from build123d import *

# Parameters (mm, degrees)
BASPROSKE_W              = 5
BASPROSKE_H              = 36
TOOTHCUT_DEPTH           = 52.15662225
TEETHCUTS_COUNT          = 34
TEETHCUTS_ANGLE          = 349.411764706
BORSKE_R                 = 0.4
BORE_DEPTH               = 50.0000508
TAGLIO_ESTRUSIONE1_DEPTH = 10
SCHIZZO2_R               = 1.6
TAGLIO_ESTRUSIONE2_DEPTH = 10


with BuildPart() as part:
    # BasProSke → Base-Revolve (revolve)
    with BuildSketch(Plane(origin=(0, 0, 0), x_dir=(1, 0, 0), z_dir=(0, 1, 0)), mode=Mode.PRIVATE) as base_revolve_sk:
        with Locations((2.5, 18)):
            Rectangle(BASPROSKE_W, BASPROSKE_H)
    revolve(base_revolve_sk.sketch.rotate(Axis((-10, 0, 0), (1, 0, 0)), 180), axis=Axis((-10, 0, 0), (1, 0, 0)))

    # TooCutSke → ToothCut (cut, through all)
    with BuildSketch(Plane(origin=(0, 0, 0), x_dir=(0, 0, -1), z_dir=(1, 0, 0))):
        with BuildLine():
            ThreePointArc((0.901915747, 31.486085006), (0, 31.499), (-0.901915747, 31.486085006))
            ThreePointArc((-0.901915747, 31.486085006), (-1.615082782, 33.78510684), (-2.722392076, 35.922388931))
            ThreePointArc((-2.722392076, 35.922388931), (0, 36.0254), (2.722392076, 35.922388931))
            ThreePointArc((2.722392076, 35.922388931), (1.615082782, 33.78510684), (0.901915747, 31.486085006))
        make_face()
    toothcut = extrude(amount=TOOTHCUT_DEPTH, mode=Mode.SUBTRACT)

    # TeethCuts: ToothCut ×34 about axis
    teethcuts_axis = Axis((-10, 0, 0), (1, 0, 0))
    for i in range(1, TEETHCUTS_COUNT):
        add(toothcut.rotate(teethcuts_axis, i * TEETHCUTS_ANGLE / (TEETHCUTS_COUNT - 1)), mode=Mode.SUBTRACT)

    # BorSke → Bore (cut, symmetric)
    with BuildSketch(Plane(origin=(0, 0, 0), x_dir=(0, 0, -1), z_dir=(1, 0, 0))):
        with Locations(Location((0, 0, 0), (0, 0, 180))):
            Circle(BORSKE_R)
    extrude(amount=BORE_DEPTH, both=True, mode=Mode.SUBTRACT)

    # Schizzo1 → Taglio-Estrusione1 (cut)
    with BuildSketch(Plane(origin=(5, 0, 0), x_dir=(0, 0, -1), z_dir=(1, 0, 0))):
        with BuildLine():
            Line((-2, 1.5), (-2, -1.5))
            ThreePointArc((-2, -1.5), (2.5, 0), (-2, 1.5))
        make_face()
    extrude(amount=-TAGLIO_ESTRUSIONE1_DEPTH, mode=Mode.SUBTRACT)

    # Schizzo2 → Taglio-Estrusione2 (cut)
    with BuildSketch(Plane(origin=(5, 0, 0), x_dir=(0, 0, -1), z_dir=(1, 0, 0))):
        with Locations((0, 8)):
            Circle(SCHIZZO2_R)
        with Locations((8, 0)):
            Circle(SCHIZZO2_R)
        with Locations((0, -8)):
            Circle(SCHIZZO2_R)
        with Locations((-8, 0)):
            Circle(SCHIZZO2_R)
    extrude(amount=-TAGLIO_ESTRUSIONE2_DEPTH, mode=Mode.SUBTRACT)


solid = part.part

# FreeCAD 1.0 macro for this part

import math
import FreeCAD as App
import Part
import Sketcher
Q = App.Units.Quantity


def add_polygon(sketch, points):
    """Adds a closed chain of lines whose ends are joined by coincident constraints."""
    first, n = sketch.GeometryCount, len(points)
    for a, b in zip(points, points[1:] + points[:1]):
        sketch.addGeometry(Part.LineSegment(App.Vector(*a, 0), App.Vector(*b, 0)), False)
    for i in range(n):
        sketch.addConstraint(Sketcher.Constraint("Coincident", first + i, 2, first + (i + 1) % n, 1))

doc = App.newDocument("Part")
body = doc.addObject("PartDesign::Body", "Body")

# Sketch on XZ plane
sketch1 = body.newObject("Sketcher::SketchObject", "Sketch")
sketch1.AttachmentSupport = (doc.getObject("XZ_Plane"), [""])
sketch1.MapMode = "FlatFace"
add_polygon(sketch1, [(0, -36), (0, 0), (5, 0), (5, -36)])  # lines 0-3
sketch1.addConstraint([
    Sketcher.Constraint("Vertical", 0),
    Sketcher.Constraint("Horizontal", 1),
    Sketcher.Constraint("Vertical", 2),
    Sketcher.Constraint("Horizontal", 3),
    Sketcher.Constraint("Coincident", 0, 2, -1, 1),
    Sketcher.Constraint("DistanceX", 1, 1, 1, 2, Q("5 mm")),
    Sketcher.Constraint("DistanceY", 0, 1, 0, 2, Q("36 mm")),
])
revolution = body.newObject("PartDesign::Revolution", "Revolution")
revolution.Profile = sketch1
revolution.ReferenceAxis = (sketch1, ["H_Axis"])
revolution.Angle = 360

# Sketch on YZ plane
sketch2 = body.newObject("Sketcher::SketchObject", "Sketch001")
sketch2.AttachmentSupport = (doc.getObject("YZ_Plane"), [""])
sketch2.MapMode = "FlatFace"
sketch2.addGeometry([
    Part.ArcOfCircle(Part.Circle(App.Vector(-0.000001, 0, 0), App.Vector(0, 0, 1), 31.499001), math.radians(-1.640783), math.radians(1.640783)),
    Part.ArcOfCircle(Part.Circle(App.Vector(28.622038, -14.196924, 0), App.Vector(0, 0, 1), 13.6), math.radians(57.534578), math.radians(77.84297)),
    Part.ArcOfCircle(Part.Circle(App.Vector(0, 0, 0), App.Vector(0, 0, 1), 36.0254), math.radians(-4.333898), math.radians(4.333898)),
    Part.ArcOfCircle(Part.Circle(App.Vector(28.622038, 14.196924, 0), App.Vector(0, 0, 1), 13.6), math.radians(-77.84297), math.radians(-57.534578)),
], False)
sketch2.addConstraint([
    Sketcher.Constraint("Coincident", 0, 1, 1, 2),
    Sketcher.Constraint("Coincident", 1, 1, 2, 1),
    Sketcher.Constraint("Coincident", 2, 2, 3, 2),
    Sketcher.Constraint("Coincident", 3, 1, 0, 2),
    Sketcher.Constraint("Coincident", 0, 3, -1, 1),
    Sketcher.Constraint("Coincident", 2, 3, -1, 1),
    Sketcher.Constraint("Equal", 1, 3),
    Sketcher.Constraint("Symmetric", 1, 3, 3, 3, -1),
    Sketcher.Constraint("Radius", 1, Q("13.6 mm")),
    Sketcher.Constraint("Radius", 0, Q("31.499001 mm")),
    Sketcher.Constraint("Radius", 2, Q("36.0254 mm")),
    Sketcher.Constraint("DistanceX", -1, 1, 1, 1, Q("35.922389 mm")),
    Sketcher.Constraint("DistanceX", 0, 3, 1, 3, Q("28.622039 mm")),
])
pocket1 = body.newObject("PartDesign::Pocket", "Pocket")
pocket1.Profile = sketch2
pocket1.Type = "ThroughAll"
pocket1.Reversed = True
doc.recompute()

polarpattern = body.newObject("PartDesign::PolarPattern", "PolarPattern")
polarpattern.Originals = [pocket1]
polarpattern.Axis = (doc.getObject("X_Axis"), [""])
polarpattern.Angle = 360
polarpattern.Occurrences = 34
body.Tip = polarpattern

# Sketch on YZ plane
sketch3 = body.newObject("Sketcher::SketchObject", "Sketch002")
sketch3.AttachmentSupport = (doc.getObject("YZ_Plane"), [""])
sketch3.MapMode = "FlatFace"
sketch3.addGeometry(Part.Circle(App.Vector(0, 0, 0), App.Vector(0, 0, 1), 0.4), False)
sketch3.addConstraint([
    Sketcher.Constraint("Coincident", 0, 3, -1, 1),
    Sketcher.Constraint("Diameter", 0, Q("0.8 mm")),
])
pocket2 = body.newObject("PartDesign::Pocket", "Pocket001")
pocket2.Profile = sketch3
pocket2.Length = 100.000102
pocket2.Midplane = True

# Sketch on YZ plane
sketch4 = body.newObject("Sketcher::SketchObject", "Sketch003")
sketch4.AttachmentSupport = (doc.getObject("YZ_Plane"), [""])
sketch4.MapMode = "FlatFace"
sketch4.AttachmentOffset = App.Placement(App.Vector(0, 0, 5), App.Rotation())
sketch4.addGeometry([
    Part.LineSegment(App.Vector(1.5, 2, 0), App.Vector(-1.5, 2, 0)),
    Part.ArcOfCircle(Part.Circle(App.Vector(0, 0, 0), App.Vector(0, 0, 1), 2.5), math.radians(126.869898), math.radians(413.130102)),
], False)
sketch4.addConstraint([
    Sketcher.Constraint("Coincident", 0, 1, 1, 2),
    Sketcher.Constraint("Coincident", 1, 1, 0, 2),
    Sketcher.Constraint("Horizontal", 0),
    Sketcher.Constraint("Coincident", 1, 3, -1, 1),
    Sketcher.Constraint("Radius", 1, Q("2.5 mm")),
    Sketcher.Constraint("DistanceX", 0, 2, 0, 1, Q("3 mm")),
])
pocket3 = body.newObject("PartDesign::Pocket", "Pocket002")
pocket3.Profile = sketch4
pocket3.Length = 10

# Sketch on YZ plane
sketch5 = body.newObject("Sketcher::SketchObject", "Sketch004")
sketch5.AttachmentSupport = (doc.getObject("YZ_Plane"), [""])
sketch5.MapMode = "FlatFace"
sketch5.AttachmentOffset = App.Placement(App.Vector(0, 0, 5), App.Rotation())
sketch5.addGeometry([
    Part.Circle(App.Vector(8, 0, 0), App.Vector(0, 0, 1), 1.6),
    Part.Circle(App.Vector(0, -8, 0), App.Vector(0, 0, 1), 1.6),
    Part.Circle(App.Vector(-8, 0, 0), App.Vector(0, 0, 1), 1.6),
    Part.Circle(App.Vector(0, 8, 0), App.Vector(0, 0, 1), 1.6),
], False)
sketch5.addConstraint([
    Sketcher.Constraint("Equal", 0, 1),
    Sketcher.Constraint("Equal", 1, 2),
    Sketcher.Constraint("Equal", 2, 3),
    Sketcher.Constraint("Symmetric", 0, 3, 2, 3, -1, 1),
    Sketcher.Constraint("Symmetric", 1, 3, 3, 3, -1, 1),
    Sketcher.Constraint("PointOnObject", 0, 3, -1),
    Sketcher.Constraint("PointOnObject", 1, 3, -2),
    Sketcher.Constraint("Diameter", 0, Q("3.2 mm")),
    Sketcher.Constraint("DistanceX", -1, 1, 0, 3, Q("8 mm")),
    Sketcher.Constraint("DistanceY", 1, 3, -1, 1, Q("8 mm")),
])
pocket4 = body.newObject("PartDesign::Pocket", "Pocket003")
pocket4.Profile = sketch5
pocket4.Length = 10

doc.recompute()
